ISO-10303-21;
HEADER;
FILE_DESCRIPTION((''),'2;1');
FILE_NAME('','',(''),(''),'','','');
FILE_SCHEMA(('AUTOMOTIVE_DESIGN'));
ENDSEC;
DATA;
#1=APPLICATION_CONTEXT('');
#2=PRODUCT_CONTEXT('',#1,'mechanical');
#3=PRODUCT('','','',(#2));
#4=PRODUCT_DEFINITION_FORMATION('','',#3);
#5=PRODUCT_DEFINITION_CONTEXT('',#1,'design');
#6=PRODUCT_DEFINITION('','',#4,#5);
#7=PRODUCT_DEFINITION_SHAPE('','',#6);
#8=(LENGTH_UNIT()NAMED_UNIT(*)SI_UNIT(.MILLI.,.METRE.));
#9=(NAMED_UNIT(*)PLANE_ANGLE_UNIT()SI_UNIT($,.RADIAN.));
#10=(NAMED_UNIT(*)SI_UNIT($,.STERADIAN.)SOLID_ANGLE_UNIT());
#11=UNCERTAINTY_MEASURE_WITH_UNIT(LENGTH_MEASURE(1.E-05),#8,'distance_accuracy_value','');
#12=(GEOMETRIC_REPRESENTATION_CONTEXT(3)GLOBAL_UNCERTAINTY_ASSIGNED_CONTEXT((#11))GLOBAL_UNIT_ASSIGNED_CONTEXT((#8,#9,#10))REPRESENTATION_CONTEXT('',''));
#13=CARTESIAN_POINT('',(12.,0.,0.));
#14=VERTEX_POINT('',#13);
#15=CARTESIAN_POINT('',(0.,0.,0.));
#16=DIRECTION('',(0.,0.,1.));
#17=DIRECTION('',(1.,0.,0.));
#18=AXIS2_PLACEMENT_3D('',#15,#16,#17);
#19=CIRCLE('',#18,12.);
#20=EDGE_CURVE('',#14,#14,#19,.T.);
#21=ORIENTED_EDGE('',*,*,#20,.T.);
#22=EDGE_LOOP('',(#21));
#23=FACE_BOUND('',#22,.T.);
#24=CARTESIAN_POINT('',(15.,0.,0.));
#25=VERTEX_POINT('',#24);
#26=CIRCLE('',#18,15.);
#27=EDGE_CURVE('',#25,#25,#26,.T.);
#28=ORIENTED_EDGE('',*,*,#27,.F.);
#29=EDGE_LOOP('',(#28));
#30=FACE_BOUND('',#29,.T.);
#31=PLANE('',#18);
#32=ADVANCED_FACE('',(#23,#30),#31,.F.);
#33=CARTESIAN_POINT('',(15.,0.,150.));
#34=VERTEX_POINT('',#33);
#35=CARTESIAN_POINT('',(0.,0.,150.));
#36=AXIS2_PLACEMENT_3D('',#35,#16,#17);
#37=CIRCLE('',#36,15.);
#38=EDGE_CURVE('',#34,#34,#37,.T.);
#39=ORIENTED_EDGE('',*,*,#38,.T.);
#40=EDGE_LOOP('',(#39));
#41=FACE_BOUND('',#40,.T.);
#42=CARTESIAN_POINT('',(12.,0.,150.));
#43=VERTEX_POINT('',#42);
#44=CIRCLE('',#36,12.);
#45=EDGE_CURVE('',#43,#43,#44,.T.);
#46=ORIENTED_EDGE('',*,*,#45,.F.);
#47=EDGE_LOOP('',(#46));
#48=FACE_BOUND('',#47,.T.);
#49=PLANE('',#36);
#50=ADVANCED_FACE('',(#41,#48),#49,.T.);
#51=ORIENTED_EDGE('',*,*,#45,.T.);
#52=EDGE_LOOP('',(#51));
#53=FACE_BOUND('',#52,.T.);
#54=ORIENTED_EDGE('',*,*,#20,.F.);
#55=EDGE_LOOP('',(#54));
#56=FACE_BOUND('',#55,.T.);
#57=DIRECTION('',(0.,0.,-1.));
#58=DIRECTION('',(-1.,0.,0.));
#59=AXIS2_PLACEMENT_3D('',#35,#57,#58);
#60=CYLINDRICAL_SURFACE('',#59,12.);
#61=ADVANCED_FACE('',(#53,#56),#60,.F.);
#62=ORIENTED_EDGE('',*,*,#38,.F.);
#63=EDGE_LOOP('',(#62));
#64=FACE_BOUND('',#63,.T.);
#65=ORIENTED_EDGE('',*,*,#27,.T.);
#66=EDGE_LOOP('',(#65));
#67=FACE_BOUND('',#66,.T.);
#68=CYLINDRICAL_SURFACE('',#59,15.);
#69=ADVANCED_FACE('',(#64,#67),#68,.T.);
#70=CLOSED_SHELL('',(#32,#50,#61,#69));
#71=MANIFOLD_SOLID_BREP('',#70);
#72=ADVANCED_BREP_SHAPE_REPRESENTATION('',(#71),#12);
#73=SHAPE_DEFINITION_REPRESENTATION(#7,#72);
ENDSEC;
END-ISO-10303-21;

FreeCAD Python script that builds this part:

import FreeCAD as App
import Part
import Sketcher
Q = App.Units.Quantity

doc = App.newDocument("Part")
params = doc.addObject("Spreadsheet::Sheet", "Params")
for row, (alias, value) in enumerate([
    ("sketch1_diameter", "30 mm"),
    ("sketch1_diameter2", "24 mm"),
    ("pad1_length", "150 mm"),
], start=1):
    params.set(f"A{row}", alias)
    params.set(f"B{row}", "=" + value)
    params.setAlias(f"B{row}", alias)

body = doc.addObject("PartDesign::Body", "Body")

# Sketch on XY plane
sketch1 = body.newObject("Sketcher::SketchObject", "Sketch")
sketch1.AttachmentSupport = (doc.getObject("XY_Plane"), [""])
sketch1.MapMode = "FlatFace"
sketch1.addGeometry([
    Part.Circle(App.Vector(0, 0, 0), App.Vector(0, 0, 1), 15),
    Part.Circle(App.Vector(0, 0, 0), App.Vector(0, 0, 1), 12),
], False)
sketch1.addConstraint([
    Sketcher.Constraint("Coincident", 0, 3, -1, 1),
    Sketcher.Constraint("Coincident", 1, 3, -1, 1),
    Sketcher.Constraint("Diameter", 0, Q("30 mm")),
    Sketcher.Constraint("Diameter", 1, Q("24 mm")),
])
sketch1.setExpression("Constraints[2]", "Params.sketch1_diameter")
sketch1.setExpression("Constraints[3]", "Params.sketch1_diameter2")
pad1 = body.newObject("PartDesign::Pad", "Pad")
pad1.Profile = sketch1
pad1.setExpression("Length", "Params.pad1_length")

doc.recompute()
